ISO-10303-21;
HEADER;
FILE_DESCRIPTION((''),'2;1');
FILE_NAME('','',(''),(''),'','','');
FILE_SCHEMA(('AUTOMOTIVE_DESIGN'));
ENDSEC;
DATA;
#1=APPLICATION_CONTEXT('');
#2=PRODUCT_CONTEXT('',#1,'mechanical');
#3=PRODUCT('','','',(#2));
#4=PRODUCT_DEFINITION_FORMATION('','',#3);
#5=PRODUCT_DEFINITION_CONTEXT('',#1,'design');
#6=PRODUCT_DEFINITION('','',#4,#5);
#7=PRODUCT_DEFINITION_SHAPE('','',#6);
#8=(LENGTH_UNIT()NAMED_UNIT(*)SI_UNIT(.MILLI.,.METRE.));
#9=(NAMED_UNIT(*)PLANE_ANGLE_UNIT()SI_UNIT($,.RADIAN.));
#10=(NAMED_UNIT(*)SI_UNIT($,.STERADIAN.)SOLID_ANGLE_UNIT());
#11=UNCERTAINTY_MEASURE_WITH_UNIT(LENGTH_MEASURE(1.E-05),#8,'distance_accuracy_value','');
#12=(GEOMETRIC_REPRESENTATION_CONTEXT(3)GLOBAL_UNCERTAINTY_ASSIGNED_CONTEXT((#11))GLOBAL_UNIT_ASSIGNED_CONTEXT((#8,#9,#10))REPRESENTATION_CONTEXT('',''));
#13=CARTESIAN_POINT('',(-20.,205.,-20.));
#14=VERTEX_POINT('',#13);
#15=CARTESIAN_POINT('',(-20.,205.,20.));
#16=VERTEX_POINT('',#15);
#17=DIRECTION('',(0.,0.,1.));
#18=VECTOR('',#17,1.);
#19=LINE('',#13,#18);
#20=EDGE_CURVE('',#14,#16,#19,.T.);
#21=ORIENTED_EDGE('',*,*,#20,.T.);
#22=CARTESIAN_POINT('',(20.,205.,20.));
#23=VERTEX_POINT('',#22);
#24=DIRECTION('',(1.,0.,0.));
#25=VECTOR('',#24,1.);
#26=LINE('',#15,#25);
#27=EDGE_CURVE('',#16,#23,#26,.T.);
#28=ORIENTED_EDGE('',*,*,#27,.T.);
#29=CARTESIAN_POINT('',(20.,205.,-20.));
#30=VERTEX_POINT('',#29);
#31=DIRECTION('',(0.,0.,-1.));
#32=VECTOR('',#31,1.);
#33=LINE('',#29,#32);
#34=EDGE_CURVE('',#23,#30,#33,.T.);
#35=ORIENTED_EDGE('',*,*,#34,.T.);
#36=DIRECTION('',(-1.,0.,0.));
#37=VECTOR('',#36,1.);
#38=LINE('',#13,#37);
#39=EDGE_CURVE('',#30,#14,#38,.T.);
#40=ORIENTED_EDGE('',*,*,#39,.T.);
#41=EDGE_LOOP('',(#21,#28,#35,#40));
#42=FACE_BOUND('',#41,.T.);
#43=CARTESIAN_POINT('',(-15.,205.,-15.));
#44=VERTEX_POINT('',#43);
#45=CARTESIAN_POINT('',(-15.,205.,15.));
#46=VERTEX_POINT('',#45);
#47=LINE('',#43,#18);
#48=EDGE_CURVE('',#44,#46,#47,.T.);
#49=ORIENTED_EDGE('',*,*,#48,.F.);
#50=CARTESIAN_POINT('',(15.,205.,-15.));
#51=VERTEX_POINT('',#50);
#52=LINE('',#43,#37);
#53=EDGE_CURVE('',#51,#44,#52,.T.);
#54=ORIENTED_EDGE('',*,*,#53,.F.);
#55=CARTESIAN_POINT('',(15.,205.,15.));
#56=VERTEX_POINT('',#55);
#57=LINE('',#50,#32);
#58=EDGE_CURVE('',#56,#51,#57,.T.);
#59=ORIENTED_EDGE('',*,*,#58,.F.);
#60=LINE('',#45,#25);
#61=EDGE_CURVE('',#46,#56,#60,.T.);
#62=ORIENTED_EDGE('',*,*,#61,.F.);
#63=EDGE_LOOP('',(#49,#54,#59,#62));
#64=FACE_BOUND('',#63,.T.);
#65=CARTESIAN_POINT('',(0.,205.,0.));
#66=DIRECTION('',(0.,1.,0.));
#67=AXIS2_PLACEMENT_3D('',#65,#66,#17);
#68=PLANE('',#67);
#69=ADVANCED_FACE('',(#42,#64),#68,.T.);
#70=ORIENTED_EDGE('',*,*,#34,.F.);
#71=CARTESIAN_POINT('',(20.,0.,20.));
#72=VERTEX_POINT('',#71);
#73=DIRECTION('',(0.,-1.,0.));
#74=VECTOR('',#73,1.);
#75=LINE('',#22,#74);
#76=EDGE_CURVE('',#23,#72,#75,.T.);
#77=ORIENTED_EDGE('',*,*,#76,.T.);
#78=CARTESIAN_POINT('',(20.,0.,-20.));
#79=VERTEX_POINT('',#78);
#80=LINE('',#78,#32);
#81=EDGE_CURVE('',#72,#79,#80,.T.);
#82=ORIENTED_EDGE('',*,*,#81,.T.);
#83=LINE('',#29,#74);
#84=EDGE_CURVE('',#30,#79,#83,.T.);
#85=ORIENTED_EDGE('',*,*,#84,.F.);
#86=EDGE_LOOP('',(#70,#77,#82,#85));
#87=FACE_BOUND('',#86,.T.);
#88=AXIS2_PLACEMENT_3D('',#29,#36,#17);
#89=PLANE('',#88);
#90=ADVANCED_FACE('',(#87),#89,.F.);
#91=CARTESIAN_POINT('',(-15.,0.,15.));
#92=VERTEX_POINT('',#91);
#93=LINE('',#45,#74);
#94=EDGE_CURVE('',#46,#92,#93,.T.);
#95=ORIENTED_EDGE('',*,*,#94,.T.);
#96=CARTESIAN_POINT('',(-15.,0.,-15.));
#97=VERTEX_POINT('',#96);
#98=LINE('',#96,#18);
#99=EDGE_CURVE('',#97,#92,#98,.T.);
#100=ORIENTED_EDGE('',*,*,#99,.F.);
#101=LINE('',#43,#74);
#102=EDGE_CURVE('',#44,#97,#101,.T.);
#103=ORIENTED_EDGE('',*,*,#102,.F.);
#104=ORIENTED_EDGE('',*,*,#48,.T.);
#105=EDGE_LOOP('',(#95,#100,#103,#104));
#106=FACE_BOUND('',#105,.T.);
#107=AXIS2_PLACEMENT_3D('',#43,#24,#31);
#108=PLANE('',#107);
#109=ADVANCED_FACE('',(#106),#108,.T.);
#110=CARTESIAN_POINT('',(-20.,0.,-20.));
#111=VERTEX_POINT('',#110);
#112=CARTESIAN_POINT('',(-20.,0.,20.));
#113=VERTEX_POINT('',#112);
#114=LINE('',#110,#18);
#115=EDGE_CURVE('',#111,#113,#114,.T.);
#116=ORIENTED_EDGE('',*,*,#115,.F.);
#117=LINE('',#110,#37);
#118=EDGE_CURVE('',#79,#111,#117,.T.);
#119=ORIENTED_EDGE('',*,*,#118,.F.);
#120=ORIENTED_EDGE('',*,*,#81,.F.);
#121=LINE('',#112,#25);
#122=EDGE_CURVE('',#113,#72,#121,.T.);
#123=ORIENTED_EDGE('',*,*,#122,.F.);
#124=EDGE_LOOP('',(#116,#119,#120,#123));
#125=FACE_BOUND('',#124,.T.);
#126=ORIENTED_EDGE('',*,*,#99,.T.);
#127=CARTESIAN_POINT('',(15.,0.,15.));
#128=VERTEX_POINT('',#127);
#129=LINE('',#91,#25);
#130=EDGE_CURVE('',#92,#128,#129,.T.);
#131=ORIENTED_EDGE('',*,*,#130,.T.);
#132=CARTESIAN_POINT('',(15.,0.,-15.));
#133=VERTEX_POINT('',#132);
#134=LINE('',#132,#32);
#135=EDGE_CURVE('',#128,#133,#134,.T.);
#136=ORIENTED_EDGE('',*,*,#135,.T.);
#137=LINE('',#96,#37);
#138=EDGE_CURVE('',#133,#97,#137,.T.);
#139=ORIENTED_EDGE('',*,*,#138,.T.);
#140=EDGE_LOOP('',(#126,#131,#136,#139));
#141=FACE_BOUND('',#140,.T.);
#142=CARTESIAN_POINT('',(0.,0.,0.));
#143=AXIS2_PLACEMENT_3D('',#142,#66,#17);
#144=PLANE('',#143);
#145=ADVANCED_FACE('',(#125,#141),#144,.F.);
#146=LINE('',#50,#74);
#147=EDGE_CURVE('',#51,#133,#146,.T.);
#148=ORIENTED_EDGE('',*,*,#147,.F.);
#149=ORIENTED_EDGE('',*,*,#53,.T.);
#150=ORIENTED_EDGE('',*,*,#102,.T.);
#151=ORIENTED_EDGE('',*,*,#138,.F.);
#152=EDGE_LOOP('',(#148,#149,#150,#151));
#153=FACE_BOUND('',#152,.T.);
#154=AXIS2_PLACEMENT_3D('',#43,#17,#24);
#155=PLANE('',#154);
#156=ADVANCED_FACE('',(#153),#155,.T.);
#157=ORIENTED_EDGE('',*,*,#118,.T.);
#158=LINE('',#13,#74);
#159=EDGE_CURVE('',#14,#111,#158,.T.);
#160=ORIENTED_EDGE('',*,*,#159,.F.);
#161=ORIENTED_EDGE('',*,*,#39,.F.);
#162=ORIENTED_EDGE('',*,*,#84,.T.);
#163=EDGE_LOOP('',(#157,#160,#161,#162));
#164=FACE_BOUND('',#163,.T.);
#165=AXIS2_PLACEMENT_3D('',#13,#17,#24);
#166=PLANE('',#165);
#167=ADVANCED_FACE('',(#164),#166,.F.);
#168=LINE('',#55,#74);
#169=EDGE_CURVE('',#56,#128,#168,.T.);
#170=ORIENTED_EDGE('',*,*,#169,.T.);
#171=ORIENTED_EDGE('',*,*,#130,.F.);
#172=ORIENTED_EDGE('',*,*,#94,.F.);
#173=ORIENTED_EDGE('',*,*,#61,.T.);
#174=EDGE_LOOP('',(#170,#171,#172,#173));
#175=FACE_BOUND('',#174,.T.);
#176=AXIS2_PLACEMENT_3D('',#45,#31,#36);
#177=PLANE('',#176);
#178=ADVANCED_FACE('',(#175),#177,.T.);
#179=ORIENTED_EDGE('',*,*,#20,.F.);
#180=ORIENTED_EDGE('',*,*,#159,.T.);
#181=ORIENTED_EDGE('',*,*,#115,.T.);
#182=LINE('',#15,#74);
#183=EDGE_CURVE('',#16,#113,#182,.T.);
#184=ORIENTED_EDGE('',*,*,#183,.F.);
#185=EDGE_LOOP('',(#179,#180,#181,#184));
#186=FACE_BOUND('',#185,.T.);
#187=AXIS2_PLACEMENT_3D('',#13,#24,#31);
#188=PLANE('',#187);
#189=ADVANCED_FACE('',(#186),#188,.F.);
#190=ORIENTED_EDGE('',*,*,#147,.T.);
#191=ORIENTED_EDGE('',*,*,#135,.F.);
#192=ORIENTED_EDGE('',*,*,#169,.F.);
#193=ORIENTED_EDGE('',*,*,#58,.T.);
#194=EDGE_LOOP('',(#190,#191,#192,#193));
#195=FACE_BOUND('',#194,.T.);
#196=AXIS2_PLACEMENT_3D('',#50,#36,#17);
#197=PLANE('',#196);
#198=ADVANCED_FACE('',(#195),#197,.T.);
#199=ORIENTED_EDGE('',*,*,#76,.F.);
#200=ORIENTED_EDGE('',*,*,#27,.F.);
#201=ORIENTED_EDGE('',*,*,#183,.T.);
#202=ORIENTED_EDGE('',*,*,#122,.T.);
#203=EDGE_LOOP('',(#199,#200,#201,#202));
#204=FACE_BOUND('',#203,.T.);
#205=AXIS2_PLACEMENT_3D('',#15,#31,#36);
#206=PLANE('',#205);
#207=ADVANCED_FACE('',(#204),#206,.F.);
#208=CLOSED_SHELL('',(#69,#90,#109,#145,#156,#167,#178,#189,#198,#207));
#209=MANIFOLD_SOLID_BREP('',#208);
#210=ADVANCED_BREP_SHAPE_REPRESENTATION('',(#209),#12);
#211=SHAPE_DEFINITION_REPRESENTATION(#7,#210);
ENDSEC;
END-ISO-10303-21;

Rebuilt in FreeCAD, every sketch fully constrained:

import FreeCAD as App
import Part
import Sketcher

V = App.Vector


def add_polygon(sketch, points):
    """Adds a closed chain of lines whose ends are joined by coincident constraints."""
    first, n = sketch.GeometryCount, len(points)
    for a, b in zip(points, points[1:] + points[:1]):
        sketch.addGeometry(Part.LineSegment(App.Vector(*a, 0), App.Vector(*b, 0)), False)
    for i in range(n):
        sketch.addConstraint(Sketcher.Constraint("Coincident", first + i, 2, first + (i + 1) % n, 1))

doc = App.newDocument("Part")
body = doc.addObject("PartDesign::Body", "Body")

# Sketch on XZ plane
sketch1 = body.newObject("Sketcher::SketchObject", "Sketch")
sketch1.AttachmentSupport = (doc.getObject("XZ_Plane"), [""])
sketch1.MapMode = "FlatFace"
add_polygon(sketch1, [(-20, -20), (-20, 20), (20, 20), (20, -20)])  # lines 0-3
add_polygon(sketch1, [(15, 15), (-15, 15), (-15, -15), (15, -15)])  # lines 4-7
sketch1.addConstraint([
    Sketcher.Constraint("Vertical", 0),
    Sketcher.Constraint("Horizontal", 1),
    Sketcher.Constraint("Vertical", 2),
    Sketcher.Constraint("Horizontal", 3),
    Sketcher.Constraint("Horizontal", 4),
    Sketcher.Constraint("Vertical", 5),
    Sketcher.Constraint("Horizontal", 6),
    Sketcher.Constraint("Vertical", 7),
    Sketcher.Constraint("Symmetric", 0, 2, 2, 2, -1, 1),
    Sketcher.Constraint("Symmetric", 4, 2, 6, 2, -1, 1),
    Sketcher.Constraint("Equal", 3, 0),
    Sketcher.Constraint("Equal", 6, 5),
    Sketcher.Constraint("DistanceX", 1, 1, 1, 2, 40.0),
    Sketcher.Constraint("DistanceX", 4, 2, 4, 1, 30.0),
])
pad1 = body.newObject("PartDesign::Pad", "Pad")
pad1.Profile = sketch1
pad1.Length = 205
pad1.Reversed = True

doc.recompute()
